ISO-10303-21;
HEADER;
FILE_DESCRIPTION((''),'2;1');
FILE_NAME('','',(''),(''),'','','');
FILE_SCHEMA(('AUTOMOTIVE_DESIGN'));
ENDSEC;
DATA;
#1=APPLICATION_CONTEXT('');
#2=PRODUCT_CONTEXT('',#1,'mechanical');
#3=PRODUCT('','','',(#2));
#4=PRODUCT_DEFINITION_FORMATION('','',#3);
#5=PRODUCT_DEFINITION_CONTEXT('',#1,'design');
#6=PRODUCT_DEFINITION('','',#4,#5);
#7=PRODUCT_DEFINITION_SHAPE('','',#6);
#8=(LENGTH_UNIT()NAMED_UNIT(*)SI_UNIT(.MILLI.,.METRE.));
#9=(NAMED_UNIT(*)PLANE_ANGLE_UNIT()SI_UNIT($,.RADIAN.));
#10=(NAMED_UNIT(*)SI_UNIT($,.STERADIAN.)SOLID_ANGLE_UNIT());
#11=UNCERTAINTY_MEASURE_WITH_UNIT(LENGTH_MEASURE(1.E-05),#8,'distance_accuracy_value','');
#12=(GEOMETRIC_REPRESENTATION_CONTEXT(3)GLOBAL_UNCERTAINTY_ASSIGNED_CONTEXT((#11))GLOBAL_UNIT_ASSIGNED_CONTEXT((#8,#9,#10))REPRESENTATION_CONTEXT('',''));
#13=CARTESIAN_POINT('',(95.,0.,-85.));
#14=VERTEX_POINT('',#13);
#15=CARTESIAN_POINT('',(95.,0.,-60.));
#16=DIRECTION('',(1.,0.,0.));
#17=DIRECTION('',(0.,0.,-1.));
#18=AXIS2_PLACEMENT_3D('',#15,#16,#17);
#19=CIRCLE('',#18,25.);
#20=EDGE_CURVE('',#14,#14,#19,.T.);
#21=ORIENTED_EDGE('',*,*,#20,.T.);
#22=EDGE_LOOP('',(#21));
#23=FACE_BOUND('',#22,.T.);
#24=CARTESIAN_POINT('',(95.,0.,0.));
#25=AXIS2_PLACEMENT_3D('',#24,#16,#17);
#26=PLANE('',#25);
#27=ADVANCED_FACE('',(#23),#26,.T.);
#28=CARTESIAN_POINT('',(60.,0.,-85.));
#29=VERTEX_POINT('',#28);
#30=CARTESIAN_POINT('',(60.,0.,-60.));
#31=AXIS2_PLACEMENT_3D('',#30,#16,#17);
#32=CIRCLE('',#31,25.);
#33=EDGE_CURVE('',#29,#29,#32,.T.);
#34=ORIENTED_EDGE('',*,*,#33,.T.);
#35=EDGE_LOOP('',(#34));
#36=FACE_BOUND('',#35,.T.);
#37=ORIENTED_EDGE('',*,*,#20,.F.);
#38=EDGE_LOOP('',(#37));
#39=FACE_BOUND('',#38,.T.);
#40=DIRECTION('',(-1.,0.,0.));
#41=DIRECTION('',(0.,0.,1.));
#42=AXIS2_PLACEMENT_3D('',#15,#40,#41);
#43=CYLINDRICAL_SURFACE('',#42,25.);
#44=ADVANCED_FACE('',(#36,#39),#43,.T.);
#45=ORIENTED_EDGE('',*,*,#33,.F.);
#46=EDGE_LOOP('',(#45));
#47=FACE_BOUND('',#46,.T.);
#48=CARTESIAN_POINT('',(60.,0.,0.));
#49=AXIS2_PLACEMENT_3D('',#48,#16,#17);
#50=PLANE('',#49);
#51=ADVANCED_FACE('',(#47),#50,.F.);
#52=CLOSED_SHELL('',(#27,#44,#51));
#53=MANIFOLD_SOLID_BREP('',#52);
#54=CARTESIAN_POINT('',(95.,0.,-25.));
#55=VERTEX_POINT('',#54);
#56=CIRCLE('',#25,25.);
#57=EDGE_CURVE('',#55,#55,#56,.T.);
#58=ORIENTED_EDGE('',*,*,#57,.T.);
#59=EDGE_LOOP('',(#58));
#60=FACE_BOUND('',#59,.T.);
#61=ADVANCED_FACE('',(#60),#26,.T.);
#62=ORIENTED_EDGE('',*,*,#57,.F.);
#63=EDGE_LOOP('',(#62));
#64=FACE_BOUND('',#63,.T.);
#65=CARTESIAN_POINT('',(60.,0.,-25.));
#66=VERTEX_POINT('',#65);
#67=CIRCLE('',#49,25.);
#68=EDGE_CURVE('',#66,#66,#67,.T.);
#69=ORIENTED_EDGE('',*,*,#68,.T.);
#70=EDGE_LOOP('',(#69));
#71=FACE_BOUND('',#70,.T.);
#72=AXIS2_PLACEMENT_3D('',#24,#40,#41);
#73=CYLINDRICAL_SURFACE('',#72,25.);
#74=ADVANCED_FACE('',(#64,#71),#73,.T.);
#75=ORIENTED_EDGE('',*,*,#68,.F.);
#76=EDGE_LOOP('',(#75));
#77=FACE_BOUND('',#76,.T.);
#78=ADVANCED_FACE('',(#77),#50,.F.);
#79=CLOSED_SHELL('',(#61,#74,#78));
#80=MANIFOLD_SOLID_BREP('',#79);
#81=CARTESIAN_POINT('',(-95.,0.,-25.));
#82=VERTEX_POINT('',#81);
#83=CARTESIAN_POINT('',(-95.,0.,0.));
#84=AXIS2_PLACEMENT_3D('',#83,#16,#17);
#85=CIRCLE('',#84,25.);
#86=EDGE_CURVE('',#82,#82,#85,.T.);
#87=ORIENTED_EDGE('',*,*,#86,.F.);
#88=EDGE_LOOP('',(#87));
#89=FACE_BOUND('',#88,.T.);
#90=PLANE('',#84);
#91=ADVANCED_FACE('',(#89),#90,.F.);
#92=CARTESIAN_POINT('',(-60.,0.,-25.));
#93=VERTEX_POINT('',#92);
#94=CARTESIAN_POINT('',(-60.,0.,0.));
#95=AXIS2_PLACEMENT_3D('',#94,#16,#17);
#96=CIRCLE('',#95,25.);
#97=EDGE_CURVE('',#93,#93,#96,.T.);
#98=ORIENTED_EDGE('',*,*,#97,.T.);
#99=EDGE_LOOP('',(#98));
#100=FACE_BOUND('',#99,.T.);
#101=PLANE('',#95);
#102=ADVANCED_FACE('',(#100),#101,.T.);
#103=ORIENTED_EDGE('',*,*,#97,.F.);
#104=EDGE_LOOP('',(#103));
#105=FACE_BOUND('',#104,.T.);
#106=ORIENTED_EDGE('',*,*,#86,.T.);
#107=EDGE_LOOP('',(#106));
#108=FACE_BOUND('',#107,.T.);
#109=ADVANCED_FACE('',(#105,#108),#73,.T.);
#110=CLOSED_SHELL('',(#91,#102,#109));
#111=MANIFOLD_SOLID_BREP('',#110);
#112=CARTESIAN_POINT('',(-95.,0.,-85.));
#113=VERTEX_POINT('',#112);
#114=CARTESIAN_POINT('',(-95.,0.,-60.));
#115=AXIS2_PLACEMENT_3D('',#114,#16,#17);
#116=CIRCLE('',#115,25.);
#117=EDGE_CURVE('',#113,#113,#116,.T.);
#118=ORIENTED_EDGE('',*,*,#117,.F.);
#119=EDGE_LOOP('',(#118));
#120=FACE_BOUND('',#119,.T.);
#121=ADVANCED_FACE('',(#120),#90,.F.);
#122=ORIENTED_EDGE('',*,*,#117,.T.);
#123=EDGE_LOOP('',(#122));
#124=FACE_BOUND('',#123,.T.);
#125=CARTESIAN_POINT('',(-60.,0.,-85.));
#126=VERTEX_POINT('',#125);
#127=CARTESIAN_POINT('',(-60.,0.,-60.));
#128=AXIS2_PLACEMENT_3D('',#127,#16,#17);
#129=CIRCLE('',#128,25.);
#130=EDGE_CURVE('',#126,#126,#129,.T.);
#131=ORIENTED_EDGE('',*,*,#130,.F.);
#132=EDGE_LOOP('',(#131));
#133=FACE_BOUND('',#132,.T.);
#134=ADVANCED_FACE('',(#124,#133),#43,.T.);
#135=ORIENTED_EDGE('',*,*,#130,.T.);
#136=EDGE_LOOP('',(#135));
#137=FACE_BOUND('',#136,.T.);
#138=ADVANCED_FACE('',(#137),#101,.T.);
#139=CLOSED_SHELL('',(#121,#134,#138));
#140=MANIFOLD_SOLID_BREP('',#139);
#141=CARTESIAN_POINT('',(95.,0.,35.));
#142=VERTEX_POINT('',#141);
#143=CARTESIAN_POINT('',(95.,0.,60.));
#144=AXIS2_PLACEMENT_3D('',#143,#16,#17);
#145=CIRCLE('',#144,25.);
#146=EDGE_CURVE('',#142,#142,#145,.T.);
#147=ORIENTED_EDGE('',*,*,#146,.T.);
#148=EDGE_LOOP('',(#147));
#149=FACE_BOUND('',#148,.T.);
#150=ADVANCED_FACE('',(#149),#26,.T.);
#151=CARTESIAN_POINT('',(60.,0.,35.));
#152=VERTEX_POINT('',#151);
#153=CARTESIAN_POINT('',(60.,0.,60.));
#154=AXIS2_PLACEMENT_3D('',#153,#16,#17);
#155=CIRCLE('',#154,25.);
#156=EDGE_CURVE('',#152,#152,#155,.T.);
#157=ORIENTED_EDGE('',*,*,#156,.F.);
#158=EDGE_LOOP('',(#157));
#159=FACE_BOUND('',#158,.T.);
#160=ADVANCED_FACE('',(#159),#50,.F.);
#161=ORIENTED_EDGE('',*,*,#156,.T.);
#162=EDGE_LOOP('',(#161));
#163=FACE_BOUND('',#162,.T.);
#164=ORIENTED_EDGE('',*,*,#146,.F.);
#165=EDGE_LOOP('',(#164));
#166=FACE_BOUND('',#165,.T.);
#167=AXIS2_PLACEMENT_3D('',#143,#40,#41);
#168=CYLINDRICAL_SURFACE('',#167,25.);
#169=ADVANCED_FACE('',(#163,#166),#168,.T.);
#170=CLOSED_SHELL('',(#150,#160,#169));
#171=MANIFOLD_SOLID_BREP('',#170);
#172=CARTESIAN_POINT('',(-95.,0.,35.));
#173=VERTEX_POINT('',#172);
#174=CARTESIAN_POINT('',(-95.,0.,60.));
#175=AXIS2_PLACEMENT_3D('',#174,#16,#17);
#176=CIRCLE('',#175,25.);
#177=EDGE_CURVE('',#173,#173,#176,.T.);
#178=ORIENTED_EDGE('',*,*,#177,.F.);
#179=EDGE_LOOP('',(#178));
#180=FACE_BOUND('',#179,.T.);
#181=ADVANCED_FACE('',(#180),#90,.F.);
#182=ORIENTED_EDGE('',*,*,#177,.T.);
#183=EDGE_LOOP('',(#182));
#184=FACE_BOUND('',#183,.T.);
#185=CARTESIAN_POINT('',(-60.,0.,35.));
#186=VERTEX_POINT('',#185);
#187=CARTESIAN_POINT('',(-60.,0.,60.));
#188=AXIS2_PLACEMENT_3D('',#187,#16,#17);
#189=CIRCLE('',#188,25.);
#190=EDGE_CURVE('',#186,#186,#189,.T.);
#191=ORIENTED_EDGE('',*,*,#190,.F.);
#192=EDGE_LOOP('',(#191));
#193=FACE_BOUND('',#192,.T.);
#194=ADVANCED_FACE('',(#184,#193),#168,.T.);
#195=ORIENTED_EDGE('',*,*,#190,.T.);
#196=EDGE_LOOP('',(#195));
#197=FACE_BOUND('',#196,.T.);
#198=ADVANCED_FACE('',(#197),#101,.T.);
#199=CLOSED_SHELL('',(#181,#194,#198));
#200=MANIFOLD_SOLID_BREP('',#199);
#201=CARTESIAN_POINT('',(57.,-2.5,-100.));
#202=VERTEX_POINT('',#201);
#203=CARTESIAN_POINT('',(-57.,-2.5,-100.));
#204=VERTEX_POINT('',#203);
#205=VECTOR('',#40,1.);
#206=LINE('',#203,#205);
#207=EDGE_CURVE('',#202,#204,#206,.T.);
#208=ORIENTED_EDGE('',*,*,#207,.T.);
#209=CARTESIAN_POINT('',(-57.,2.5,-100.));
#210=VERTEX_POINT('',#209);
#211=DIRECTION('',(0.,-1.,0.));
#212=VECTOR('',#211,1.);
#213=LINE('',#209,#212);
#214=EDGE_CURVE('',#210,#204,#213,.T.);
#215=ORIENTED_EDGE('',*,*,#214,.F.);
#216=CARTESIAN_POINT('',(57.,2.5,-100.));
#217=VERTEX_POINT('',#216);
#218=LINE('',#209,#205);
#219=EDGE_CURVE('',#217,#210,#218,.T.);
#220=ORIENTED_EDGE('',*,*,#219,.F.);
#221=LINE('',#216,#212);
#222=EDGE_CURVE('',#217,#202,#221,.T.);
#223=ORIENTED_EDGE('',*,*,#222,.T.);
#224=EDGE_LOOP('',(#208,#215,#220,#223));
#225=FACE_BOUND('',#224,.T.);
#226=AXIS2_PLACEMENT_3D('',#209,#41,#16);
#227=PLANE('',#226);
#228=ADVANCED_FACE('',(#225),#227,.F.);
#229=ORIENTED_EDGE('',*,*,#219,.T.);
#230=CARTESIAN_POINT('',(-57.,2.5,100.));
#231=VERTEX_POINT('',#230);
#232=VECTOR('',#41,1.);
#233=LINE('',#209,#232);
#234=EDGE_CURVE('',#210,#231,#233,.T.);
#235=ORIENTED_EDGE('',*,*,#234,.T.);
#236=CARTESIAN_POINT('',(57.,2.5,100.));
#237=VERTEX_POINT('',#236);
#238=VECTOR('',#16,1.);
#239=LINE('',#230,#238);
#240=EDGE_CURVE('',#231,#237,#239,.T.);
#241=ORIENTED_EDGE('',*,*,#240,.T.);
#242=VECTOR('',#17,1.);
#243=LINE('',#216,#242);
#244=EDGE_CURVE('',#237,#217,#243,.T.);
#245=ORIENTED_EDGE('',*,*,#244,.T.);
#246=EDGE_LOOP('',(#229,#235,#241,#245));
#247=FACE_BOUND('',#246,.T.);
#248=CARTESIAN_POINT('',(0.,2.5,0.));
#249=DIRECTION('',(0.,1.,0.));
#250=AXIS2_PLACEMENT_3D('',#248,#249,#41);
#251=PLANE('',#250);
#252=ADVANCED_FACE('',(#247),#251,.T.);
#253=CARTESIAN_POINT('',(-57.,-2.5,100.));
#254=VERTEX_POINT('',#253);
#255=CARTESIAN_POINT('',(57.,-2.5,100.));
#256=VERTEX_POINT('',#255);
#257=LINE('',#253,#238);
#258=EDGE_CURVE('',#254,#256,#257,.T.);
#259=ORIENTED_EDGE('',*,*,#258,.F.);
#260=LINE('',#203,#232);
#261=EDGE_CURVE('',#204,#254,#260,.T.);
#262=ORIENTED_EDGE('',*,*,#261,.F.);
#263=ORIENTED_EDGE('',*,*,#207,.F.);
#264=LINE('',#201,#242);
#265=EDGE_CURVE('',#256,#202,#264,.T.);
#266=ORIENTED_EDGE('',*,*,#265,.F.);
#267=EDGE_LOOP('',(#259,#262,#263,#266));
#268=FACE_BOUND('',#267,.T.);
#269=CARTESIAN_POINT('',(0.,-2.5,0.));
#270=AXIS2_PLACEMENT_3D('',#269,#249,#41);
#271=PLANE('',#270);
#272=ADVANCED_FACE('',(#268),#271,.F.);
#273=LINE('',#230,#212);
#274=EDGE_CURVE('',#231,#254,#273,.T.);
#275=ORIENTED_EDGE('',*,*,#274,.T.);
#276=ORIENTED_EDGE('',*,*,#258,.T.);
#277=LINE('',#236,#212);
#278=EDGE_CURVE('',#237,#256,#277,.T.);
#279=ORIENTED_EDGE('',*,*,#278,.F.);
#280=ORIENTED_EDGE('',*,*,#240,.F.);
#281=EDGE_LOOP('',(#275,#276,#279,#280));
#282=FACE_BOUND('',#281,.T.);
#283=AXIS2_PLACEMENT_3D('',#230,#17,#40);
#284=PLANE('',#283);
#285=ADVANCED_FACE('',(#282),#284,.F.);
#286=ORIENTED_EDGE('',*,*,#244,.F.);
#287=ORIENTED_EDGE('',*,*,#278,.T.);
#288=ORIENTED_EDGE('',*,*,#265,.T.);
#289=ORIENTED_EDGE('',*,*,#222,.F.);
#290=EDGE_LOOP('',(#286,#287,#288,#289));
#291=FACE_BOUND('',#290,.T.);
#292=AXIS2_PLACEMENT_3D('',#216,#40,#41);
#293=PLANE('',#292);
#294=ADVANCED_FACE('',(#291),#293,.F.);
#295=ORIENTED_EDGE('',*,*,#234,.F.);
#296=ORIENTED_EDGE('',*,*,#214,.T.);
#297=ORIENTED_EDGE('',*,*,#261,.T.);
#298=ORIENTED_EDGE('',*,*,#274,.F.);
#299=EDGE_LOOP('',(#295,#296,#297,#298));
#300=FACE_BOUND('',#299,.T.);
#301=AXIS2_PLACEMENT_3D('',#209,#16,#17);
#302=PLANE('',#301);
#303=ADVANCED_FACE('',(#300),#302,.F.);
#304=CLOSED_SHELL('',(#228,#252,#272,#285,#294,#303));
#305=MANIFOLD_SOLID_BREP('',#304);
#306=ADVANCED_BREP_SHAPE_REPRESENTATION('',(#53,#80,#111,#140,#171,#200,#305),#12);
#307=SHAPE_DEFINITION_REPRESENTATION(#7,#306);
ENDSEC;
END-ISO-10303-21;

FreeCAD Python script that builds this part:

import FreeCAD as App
import Part
import Sketcher

doc = App.newDocument("Part")
body = doc.addObject("PartDesign::Body", "Body")
body.AllowCompound = True

sketch1 = body.newObject("Sketcher::SketchObject", "Sketch")
sketch1.AttachmentSupport = (doc.getObject("YZ_Plane"), [""])
sketch1.MapMode = "FlatFace"
sketch1.addGeometry([
    Part.Circle(App.Vector(0, -60, 0), App.Vector(0, 0, 1), 25),
    Part.Circle(App.Vector(0, 60, 0), App.Vector(0, 0, 1), 25),
    Part.Circle(App.Vector(0, 0, 0), App.Vector(0, 0, 1), 25),
], False)
sketch1.addConstraint([
    Sketcher.Constraint("Coincident", 2, 3, -1, 1),
    Sketcher.Constraint("Equal", 0, 1),
    Sketcher.Constraint("Equal", 1, 2),
    Sketcher.Constraint("Symmetric", 0, 3, 1, 3, -1, 1),
    Sketcher.Constraint("PointOnObject", 0, 3, -2),
    Sketcher.Constraint("Diameter", 0, 50.0),
    Sketcher.Constraint("DistanceY", 0, 3, -1, 1, 60.0),
])
pad1 = body.newObject("PartDesign::Pad", "Pad")
pad1.Profile = sketch1
pad1.Length = 190
pad1.Midplane = True

sketch2 = body.newObject("Sketcher::SketchObject", "Sketch001")
sketch2.AttachmentSupport = (doc.getObject("YZ_Plane"), [""])
sketch2.MapMode = "FlatFace"
sketch2.addGeometry([
    Part.Circle(App.Vector(0, -60, 0), App.Vector(0, 0, 1), 25),
    Part.Circle(App.Vector(0, 60, 0), App.Vector(0, 0, 1), 25),
    Part.Circle(App.Vector(0, 0, 0), App.Vector(0, 0, 1), 25),
], False)
sketch2.addConstraint([
    Sketcher.Constraint("Coincident", 2, 3, -1, 1),
    Sketcher.Constraint("Equal", 0, 1),
    Sketcher.Constraint("Equal", 1, 2),
    Sketcher.Constraint("Symmetric", 0, 3, 1, 3, -1, 1),
    Sketcher.Constraint("PointOnObject", 0, 3, -2),
    Sketcher.Constraint("Diameter", 0, 50.0),
    Sketcher.Constraint("DistanceY", 0, 3, -1, 1, 60.0),
])
pocket1 = body.newObject("PartDesign::Pocket", "Pocket")
pocket1.Profile = sketch2
pocket1.Length = 120
pocket1.Midplane = True
body2 = doc.addObject("PartDesign::Body", "Body001")

sketch3 = body2.newObject("Sketcher::SketchObject", "Sketch002")
sketch3.AttachmentSupport = (doc.getObject("XZ_Plane001"), [""])
sketch3.MapMode = "FlatFace"
sketch3.addGeometry([
    Part.LineSegment(App.Vector(-57, -100, 0), App.Vector(-57, 100, 0)),
    Part.LineSegment(App.Vector(-57, 100, 0), App.Vector(57, 100, 0)),
    Part.LineSegment(App.Vector(57, 100, 0), App.Vector(57, -100, 0)),
    Part.LineSegment(App.Vector(57, -100, 0), App.Vector(-57, -100, 0)),
], False)
sketch3.addConstraint([
    Sketcher.Constraint("Coincident", 0, 2, 1, 1),
    Sketcher.Constraint("Coincident", 1, 2, 2, 1),
    Sketcher.Constraint("Coincident", 2, 2, 3, 1),
    Sketcher.Constraint("Coincident", 3, 2, 0, 1),
    Sketcher.Constraint("Vertical", 0),
    Sketcher.Constraint("Horizontal", 1),
    Sketcher.Constraint("Vertical", 2),
    Sketcher.Constraint("Horizontal", 3),
    Sketcher.Constraint("Symmetric", 0, 2, 2, 2, -1, 1),
    Sketcher.Constraint("DistanceX", 1, 1, 1, 2, 114.0),
    Sketcher.Constraint("DistanceY", 0, 1, 0, 2, 200.0),
])
pad2 = body2.newObject("PartDesign::Pad", "Pad001")
pad2.Profile = sketch3
pad2.Length = 5
pad2.Midplane = True

doc.recompute()
